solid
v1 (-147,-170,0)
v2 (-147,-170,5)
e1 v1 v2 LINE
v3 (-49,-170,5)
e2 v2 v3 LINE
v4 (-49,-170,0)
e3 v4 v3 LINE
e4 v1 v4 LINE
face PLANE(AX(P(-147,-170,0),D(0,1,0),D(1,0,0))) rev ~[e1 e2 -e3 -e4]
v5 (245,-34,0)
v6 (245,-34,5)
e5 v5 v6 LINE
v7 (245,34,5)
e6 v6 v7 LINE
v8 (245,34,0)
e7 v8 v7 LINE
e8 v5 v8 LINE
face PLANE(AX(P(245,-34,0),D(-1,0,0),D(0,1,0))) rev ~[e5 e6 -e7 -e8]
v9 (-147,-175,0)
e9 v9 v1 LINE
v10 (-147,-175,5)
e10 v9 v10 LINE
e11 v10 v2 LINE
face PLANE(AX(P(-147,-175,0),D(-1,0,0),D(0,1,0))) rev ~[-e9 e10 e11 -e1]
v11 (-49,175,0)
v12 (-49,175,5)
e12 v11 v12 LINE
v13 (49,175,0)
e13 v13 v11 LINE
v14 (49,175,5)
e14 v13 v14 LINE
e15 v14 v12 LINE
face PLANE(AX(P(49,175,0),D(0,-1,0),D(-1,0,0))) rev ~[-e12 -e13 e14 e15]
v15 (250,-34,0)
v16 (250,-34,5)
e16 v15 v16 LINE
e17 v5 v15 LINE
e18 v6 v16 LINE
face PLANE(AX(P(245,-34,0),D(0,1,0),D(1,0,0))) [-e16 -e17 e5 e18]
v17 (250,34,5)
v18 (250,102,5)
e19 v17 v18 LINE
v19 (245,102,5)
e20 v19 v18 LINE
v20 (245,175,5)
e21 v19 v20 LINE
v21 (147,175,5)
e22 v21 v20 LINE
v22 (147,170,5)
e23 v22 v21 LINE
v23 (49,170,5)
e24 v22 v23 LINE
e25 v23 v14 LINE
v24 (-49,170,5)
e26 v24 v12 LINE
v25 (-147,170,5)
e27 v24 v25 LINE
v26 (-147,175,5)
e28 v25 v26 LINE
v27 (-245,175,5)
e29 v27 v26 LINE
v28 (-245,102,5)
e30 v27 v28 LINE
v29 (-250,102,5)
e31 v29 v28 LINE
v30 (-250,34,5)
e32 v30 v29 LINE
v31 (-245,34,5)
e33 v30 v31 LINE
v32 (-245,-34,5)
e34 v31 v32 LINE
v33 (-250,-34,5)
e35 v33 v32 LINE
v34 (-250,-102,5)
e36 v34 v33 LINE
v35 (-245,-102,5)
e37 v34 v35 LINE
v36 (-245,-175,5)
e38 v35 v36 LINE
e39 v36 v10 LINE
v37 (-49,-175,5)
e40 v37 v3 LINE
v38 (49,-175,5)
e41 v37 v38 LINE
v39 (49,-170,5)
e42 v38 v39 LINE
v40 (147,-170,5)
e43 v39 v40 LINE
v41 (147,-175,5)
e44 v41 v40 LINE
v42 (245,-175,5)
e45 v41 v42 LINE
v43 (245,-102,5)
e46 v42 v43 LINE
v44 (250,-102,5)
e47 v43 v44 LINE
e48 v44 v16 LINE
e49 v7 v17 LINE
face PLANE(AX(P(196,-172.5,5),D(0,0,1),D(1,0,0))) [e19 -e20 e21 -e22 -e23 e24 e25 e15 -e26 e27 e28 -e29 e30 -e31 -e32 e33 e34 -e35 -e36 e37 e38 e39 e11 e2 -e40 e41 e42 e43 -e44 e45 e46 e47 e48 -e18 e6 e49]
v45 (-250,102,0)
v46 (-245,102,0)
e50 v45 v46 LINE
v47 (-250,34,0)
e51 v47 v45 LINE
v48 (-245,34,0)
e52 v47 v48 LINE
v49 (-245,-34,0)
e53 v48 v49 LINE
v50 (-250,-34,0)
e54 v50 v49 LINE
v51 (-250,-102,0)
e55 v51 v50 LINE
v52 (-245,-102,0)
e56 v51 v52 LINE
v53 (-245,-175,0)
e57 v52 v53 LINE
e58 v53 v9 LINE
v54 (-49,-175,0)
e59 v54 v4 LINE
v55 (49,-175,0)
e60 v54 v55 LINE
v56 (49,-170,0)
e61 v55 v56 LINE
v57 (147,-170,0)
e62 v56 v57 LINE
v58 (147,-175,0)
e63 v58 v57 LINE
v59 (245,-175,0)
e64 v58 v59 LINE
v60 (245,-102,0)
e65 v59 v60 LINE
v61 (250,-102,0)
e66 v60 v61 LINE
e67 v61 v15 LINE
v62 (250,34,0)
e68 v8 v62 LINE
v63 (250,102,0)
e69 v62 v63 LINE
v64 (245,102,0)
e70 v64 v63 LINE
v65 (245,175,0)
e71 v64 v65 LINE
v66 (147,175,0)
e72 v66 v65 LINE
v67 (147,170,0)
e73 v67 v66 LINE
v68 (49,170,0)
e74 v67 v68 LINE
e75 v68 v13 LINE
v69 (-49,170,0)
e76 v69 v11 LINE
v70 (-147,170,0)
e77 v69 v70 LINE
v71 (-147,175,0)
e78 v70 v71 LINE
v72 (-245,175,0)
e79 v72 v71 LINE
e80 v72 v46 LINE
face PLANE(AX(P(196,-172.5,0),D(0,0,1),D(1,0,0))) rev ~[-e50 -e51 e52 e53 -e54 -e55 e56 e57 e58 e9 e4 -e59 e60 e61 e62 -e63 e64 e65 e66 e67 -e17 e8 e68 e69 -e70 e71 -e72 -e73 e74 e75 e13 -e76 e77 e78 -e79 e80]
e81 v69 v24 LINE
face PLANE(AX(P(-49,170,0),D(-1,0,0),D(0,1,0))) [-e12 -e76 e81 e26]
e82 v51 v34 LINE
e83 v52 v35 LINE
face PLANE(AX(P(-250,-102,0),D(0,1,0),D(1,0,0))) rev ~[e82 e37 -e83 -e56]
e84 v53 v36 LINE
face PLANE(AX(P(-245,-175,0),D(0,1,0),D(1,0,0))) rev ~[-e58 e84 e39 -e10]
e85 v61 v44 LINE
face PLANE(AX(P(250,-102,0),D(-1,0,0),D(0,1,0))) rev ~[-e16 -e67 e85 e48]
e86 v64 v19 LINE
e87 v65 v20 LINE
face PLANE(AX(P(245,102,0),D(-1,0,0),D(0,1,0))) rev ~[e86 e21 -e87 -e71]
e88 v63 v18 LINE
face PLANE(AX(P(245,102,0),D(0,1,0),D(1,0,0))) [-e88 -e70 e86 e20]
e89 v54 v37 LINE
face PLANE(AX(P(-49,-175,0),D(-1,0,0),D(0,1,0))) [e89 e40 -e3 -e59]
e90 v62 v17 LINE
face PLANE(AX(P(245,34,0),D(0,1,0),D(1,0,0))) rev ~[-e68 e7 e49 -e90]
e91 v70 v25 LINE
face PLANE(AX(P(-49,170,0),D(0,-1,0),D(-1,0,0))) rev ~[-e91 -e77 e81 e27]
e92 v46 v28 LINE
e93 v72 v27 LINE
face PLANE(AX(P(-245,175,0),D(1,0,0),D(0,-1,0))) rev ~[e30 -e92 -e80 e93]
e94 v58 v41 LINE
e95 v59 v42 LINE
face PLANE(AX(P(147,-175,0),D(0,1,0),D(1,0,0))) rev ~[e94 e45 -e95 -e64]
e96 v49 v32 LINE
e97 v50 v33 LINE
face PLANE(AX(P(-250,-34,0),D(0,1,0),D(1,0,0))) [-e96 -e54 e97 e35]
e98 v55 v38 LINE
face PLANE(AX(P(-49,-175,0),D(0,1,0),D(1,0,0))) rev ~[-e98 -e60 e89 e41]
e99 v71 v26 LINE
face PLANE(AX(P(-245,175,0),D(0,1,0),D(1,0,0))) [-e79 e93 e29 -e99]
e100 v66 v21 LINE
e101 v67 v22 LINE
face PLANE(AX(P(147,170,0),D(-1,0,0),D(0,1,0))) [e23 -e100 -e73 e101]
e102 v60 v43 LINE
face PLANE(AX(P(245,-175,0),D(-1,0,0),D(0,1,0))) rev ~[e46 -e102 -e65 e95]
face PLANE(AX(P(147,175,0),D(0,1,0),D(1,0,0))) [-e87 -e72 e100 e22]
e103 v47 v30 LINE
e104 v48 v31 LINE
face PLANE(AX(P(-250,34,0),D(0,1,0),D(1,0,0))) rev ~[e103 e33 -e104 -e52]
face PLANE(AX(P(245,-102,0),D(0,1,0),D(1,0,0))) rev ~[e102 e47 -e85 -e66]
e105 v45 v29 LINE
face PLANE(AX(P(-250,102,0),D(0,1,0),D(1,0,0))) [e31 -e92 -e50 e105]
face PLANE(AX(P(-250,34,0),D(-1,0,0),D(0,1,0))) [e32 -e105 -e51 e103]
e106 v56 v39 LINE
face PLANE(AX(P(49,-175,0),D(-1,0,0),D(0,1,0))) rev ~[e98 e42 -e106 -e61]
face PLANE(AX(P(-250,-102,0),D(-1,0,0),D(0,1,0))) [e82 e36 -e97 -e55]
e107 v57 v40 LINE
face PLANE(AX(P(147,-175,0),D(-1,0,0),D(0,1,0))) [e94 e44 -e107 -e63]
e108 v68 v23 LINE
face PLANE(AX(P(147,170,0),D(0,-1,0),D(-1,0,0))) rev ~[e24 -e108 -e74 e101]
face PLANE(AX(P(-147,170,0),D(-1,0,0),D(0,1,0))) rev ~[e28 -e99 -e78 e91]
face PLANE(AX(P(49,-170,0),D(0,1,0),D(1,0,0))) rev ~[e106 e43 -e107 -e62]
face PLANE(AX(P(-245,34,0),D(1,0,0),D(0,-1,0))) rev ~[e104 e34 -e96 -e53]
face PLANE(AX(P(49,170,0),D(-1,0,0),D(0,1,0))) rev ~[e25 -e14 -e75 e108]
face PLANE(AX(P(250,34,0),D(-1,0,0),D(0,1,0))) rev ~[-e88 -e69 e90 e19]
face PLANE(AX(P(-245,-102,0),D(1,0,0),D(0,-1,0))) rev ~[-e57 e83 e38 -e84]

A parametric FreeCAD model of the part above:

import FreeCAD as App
import Part
import Sketcher


def add_polygon(sketch, points):
    """Adds a closed chain of lines whose ends are joined by coincident constraints."""
    first, n = sketch.GeometryCount, len(points)
    for a, b in zip(points, points[1:] + points[:1]):
        sketch.addGeometry(Part.LineSegment(App.Vector(*a, 0), App.Vector(*b, 0)), False)
    for i in range(n):
        sketch.addConstraint(Sketcher.Constraint("Coincident", first + i, 2, first + (i + 1) % n, 1))

doc = App.newDocument("Part")
body = doc.addObject("PartDesign::Body", "Body")

# Sketch on XY plane
sketch1 = doc.addObject("Sketcher::SketchObject", "Sketch")
body.addObject(sketch1)
sketch1.AttachmentSupport = (doc.XY_Plane, [""])
sketch1.MapMode = "FlatFace"
add_polygon(sketch1, [(147, -170), (147, -175), (245, -175), (245, -102), (250, -102), (250, -34), (245, -34), (245, 34), (250, 34), (250, 102), (245, 102), (245, 175), (147, 175), (147, 170), (49, 170), (49, 175), (-49, 175), (-49, 170), (-147, 170), (-147, 175), (-245, 175), (-245, 102), (-250, 102), (-250, 34), (-245, 34), (-245, -34), (-250, -34), (-250, -102), (-245, -102), (-245, -175), (-147, -175), (-147, -170), (-49, -170), (-49, -175), (49, -175), (49, -170)])  # lines 0-35
sketch1.addConstraint(Sketcher.Constraint("Vertical", 0))
sketch1.addConstraint(Sketcher.Constraint("Horizontal", 1))
sketch1.addConstraint(Sketcher.Constraint("Vertical", 2))
sketch1.addConstraint(Sketcher.Constraint("Horizontal", 3))
sketch1.addConstraint(Sketcher.Constraint("Vertical", 4))
sketch1.addConstraint(Sketcher.Constraint("Horizontal", 5))
sketch1.addConstraint(Sketcher.Constraint("Vertical", 6))
sketch1.addConstraint(Sketcher.Constraint("Horizontal", 7))
sketch1.addConstraint(Sketcher.Constraint("Vertical", 8))
sketch1.addConstraint(Sketcher.Constraint("Horizontal", 9))
sketch1.addConstraint(Sketcher.Constraint("Vertical", 10))
sketch1.addConstraint(Sketcher.Constraint("Horizontal", 11))
sketch1.addConstraint(Sketcher.Constraint("Vertical", 12))
sketch1.addConstraint(Sketcher.Constraint("Horizontal", 13))
sketch1.addConstraint(Sketcher.Constraint("Vertical", 14))
sketch1.addConstraint(Sketcher.Constraint("Horizontal", 15))
sketch1.addConstraint(Sketcher.Constraint("Vertical", 16))
sketch1.addConstraint(Sketcher.Constraint("Horizontal", 17))
sketch1.addConstraint(Sketcher.Constraint("Vertical", 18))
sketch1.addConstraint(Sketcher.Constraint("Horizontal", 19))
sketch1.addConstraint(Sketcher.Constraint("Vertical", 20))
sketch1.addConstraint(Sketcher.Constraint("Horizontal", 21))
sketch1.addConstraint(Sketcher.Constraint("Vertical", 22))
sketch1.addConstraint(Sketcher.Constraint("Horizontal", 23))
sketch1.addConstraint(Sketcher.Constraint("Vertical", 24))
sketch1.addConstraint(Sketcher.Constraint("Horizontal", 25))
sketch1.addConstraint(Sketcher.Constraint("Vertical", 26))
sketch1.addConstraint(Sketcher.Constraint("Horizontal", 27))
sketch1.addConstraint(Sketcher.Constraint("Vertical", 28))
sketch1.addConstraint(Sketcher.Constraint("Horizontal", 29))
sketch1.addConstraint(Sketcher.Constraint("Vertical", 30))
sketch1.addConstraint(Sketcher.Constraint("Horizontal", 31))
sketch1.addConstraint(Sketcher.Constraint("Vertical", 32))
sketch1.addConstraint(Sketcher.Constraint("Horizontal", 33))
sketch1.addConstraint(Sketcher.Constraint("Vertical", 34))
sketch1.addConstraint(Sketcher.Constraint("Horizontal", 35))
sketch1.addConstraint(Sketcher.Constraint("Symmetric", 0, 2, 18, 2, -1, 1))
sketch1.addConstraint(Sketcher.Constraint("Symmetric", 2, 2, 20, 2, -1, 1))
sketch1.addConstraint(Sketcher.Constraint("Symmetric", 4, 2, 22, 2, -1, 1))
sketch1.addConstraint(Sketcher.Constraint("Symmetric", 6, 2, 24, 2, -1, 1))
sketch1.addConstraint(Sketcher.Constraint("Symmetric", 8, 2, 26, 2, -1, 1))
sketch1.addConstraint(Sketcher.Constraint("Symmetric", 10, 2, 28, 2, -1, 1))
sketch1.addConstraint(Sketcher.Constraint("Symmetric", 12, 2, 30, 2, -1, 1))
sketch1.addConstraint(Sketcher.Constraint("Symmetric", 14, 2, 32, 2, -1, 1))
sketch1.addConstraint(Sketcher.Constraint("Symmetric", 16, 2, 34, 2, -1, 1))
sketch1.addConstraint(Sketcher.Constraint("Symmetric", 13, 2, 16, 2, -2))
sketch1.addConstraint(Sketcher.Constraint("Symmetric", 11, 2, 18, 2, -2))
sketch1.addConstraint(Sketcher.Constraint("Symmetric", 9, 2, 20, 2, -2))
sketch1.addConstraint(Sketcher.Constraint("Symmetric", 7, 2, 22, 2, -2))
sketch1.addConstraint(Sketcher.Constraint("Horizontal", 11, 2, 14, 2))
sketch1.addConstraint(Sketcher.Constraint("Vertical", 2, 2, 5, 2))
sketch1.addConstraint(Sketcher.Constraint("Equal", 11, 13))
sketch1.addConstraint(Sketcher.Constraint("Equal", 13, 15))
sketch1.addConstraint(Sketcher.Constraint("Equal", 27, 0))
sketch1.addConstraint(Sketcher.Constraint("Equal", 4, 6))
sketch1.addConstraint(Sketcher.Constraint("DistanceX", 1, 1, 1, 2, 98.0))
sketch1.addConstraint(Sketcher.Constraint("DistanceX", 3, 1, 3, 2, 5.0))
sketch1.addConstraint(Sketcher.Constraint("DistanceY", 2, 1, 2, 2, 73.0))
sketch1.addConstraint(Sketcher.Constraint("DistanceY", 4, 1, 4, 2, 68.0))
pad1 = doc.addObject("PartDesign::Pad", "Pad")
body.addObject(pad1)
pad1.Profile = sketch1
pad1.Length = 5

doc.recompute()
